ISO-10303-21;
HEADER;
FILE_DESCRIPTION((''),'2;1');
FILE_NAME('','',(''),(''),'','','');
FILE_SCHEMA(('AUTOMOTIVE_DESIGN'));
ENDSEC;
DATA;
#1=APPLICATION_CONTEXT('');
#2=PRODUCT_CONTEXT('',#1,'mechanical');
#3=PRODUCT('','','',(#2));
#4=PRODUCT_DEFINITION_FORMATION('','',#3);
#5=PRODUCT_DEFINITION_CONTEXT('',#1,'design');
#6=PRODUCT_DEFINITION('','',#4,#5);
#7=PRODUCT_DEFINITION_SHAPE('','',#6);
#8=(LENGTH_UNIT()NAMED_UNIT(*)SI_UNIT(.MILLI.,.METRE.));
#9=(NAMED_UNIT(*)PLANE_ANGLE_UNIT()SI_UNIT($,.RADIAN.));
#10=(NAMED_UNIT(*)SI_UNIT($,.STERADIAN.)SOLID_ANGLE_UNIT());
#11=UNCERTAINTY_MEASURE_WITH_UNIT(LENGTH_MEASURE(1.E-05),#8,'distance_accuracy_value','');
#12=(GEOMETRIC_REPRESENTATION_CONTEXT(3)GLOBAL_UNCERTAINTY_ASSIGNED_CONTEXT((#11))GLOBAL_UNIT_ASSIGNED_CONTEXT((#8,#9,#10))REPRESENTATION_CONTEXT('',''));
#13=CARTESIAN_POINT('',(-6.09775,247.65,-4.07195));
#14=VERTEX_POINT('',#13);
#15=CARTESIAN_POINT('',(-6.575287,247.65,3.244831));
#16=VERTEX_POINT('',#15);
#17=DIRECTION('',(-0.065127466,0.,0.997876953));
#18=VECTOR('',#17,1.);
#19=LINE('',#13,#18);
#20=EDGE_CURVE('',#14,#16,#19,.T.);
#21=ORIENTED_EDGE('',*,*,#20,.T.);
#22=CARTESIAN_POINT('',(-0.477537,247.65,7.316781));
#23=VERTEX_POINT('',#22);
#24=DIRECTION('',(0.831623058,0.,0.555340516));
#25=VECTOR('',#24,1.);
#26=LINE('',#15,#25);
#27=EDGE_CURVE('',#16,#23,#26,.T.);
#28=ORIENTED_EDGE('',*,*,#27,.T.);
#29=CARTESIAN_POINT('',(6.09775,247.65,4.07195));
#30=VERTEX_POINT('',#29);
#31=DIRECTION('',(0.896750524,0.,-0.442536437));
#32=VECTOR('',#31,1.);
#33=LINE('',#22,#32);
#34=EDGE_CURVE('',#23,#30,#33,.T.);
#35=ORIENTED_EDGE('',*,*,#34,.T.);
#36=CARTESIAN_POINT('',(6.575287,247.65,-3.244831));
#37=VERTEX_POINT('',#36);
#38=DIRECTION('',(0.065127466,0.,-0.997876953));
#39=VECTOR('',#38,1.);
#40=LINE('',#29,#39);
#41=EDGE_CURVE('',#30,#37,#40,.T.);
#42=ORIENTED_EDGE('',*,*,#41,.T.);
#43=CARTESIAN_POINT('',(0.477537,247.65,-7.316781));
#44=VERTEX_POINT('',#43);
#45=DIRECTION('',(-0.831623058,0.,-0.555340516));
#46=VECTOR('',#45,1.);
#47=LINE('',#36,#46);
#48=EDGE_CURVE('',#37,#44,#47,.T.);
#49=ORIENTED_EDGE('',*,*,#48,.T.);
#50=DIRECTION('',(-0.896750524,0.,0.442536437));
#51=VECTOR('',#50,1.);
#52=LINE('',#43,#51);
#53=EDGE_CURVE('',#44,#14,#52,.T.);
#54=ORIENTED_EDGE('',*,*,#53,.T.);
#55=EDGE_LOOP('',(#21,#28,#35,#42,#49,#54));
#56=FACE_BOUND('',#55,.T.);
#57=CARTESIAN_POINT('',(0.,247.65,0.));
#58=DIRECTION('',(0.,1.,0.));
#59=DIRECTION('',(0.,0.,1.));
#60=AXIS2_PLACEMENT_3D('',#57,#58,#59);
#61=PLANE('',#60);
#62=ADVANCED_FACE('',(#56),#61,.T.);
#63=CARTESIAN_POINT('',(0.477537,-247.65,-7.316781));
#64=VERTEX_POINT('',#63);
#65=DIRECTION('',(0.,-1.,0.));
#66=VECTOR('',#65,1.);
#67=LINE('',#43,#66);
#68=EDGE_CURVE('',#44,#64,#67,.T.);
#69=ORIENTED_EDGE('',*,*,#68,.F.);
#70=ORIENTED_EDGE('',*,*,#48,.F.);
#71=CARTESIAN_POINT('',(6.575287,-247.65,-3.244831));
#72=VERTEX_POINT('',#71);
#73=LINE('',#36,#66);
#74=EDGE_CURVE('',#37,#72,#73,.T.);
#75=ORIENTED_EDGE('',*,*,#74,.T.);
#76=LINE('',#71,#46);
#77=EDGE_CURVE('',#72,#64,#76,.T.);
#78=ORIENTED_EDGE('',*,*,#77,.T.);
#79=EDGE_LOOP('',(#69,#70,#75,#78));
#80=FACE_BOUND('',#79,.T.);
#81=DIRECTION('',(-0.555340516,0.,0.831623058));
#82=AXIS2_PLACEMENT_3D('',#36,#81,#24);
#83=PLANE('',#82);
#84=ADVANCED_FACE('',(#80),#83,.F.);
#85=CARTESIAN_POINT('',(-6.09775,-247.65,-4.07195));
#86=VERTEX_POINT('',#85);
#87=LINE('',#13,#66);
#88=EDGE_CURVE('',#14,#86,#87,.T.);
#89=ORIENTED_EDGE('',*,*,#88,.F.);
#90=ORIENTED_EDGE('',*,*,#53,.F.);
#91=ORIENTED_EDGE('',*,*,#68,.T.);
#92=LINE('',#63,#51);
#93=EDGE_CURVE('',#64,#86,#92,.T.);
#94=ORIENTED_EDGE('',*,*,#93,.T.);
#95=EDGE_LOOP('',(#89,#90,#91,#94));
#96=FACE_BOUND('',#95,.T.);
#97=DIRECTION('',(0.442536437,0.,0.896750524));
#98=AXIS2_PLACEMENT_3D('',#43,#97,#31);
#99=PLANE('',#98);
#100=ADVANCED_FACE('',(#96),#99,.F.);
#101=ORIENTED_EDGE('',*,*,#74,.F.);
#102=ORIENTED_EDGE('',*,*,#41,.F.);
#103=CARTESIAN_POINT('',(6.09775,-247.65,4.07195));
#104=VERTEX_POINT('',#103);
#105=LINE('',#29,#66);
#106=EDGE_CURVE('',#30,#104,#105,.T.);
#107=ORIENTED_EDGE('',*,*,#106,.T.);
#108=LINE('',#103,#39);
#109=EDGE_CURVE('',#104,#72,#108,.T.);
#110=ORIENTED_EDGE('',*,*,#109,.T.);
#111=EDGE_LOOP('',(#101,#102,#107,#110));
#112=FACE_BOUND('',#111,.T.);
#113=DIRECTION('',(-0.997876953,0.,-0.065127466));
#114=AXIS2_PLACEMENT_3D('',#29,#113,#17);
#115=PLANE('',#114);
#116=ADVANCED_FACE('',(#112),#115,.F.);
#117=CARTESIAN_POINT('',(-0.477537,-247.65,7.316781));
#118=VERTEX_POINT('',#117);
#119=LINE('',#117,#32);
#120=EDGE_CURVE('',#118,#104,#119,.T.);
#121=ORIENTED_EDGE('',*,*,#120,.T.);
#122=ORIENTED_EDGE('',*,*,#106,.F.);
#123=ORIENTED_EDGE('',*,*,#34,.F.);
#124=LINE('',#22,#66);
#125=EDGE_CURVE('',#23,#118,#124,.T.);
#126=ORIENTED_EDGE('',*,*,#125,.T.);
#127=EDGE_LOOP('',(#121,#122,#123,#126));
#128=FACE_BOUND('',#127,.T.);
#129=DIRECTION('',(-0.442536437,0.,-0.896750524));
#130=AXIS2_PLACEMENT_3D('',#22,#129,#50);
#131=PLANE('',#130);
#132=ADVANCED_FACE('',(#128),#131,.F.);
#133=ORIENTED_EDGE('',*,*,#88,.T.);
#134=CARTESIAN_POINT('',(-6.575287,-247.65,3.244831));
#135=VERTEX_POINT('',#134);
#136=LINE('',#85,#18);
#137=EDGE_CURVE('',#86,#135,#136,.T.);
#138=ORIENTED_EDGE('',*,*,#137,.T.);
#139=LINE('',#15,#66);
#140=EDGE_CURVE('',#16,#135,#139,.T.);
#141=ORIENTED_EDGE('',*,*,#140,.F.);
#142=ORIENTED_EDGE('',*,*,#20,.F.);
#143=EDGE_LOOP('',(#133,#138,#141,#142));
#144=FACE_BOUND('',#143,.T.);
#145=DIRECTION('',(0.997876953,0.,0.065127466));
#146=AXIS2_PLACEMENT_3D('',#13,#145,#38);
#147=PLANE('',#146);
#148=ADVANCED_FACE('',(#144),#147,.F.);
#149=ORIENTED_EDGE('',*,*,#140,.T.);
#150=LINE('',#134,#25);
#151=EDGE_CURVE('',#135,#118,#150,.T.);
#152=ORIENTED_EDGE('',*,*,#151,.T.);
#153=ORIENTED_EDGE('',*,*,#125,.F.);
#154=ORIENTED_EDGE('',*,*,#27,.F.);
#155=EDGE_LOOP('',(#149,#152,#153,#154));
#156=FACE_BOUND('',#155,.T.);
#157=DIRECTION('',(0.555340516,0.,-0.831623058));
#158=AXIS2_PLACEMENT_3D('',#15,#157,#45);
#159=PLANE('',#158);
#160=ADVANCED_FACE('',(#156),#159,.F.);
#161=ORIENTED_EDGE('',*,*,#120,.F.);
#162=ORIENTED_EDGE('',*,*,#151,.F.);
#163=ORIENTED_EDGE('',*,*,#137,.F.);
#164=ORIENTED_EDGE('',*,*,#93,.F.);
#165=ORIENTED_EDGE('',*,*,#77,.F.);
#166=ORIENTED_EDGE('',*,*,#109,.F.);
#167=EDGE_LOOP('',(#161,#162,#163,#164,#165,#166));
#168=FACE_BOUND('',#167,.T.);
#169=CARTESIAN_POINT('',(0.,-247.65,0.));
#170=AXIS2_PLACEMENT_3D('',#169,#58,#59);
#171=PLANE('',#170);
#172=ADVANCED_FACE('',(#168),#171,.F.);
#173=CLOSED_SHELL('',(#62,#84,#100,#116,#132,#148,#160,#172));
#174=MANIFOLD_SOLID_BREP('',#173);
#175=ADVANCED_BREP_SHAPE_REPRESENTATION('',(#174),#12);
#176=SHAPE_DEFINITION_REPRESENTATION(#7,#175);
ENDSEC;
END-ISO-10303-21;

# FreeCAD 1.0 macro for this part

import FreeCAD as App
import Part
import Sketcher

V = App.Vector
Q = App.Units.Quantity


def add_polygon(sketch, points):
    """Adds a closed chain of lines whose ends are joined by coincident constraints."""
    first, n = sketch.GeometryCount, len(points)
    for a, b in zip(points, points[1:] + points[:1]):
        sketch.addGeometry(Part.LineSegment(App.Vector(*a, 0), App.Vector(*b, 0)), False)
    for i in range(n):
        sketch.addConstraint(Sketcher.Constraint("Coincident", first + i, 2, first + (i + 1) % n, 1))

doc = App.newDocument("Part")
params = doc.addObject("Spreadsheet::Sheet", "Params")
for row, (alias, value) in enumerate([
    ("pad1_length", "19.5 in"),
], start=1):
    params.set(f"A{row}", alias)
    params.set(f"B{row}", "=" + value)
    params.setAlias(f"B{row}", alias)

body = doc.addObject("PartDesign::Body", "Body")

# Sketch on XZ plane
sketch1 = doc.addObject("Sketcher::SketchObject", "Sketch")
body.addObject(sketch1)
sketch1.AttachmentSupport = (doc.XZ_Plane, [""])
sketch1.MapMode = "FlatFace"
add_polygon(sketch1, [(6.09775, 4.07195), (6.575287, -3.244831), (0.477537, -7.316781), (-6.09775, -4.07195), (-6.575287, 3.244831), (-0.477537, 7.316781)])  # lines 0-5
sketch1.addConstraint([
    Sketcher.Constraint("Symmetric", 0, 2, 3, 2, -1, 1),
    Sketcher.Constraint("Symmetric", 1, 2, 4, 2, -1, 1),
    Sketcher.Constraint("Symmetric", 2, 2, 5, 2, -1, 1),
    Sketcher.Constraint("Equal", 0, 1),
    Sketcher.Constraint("Equal", 1, 2),
    Sketcher.Constraint("DistanceX", 2, 2, 5, 2, Q("12.1955 mm")),
    Sketcher.Constraint("DistanceY", 2, 2, 5, 2, Q("8.1439 mm")),
    Sketcher.Constraint("Distance", 0, Q("7.332348 mm")),
    Sketcher.Constraint("DistanceY", 0, 2, -1, 1, Q("3.244831 mm")),
])
pad1 = doc.addObject("PartDesign::Pad", "Pad")
body.addObject(pad1)
pad1.Profile = sketch1
pad1.setExpression("Length", "Params.pad1_length")
pad1.Midplane = True

doc.recompute()
